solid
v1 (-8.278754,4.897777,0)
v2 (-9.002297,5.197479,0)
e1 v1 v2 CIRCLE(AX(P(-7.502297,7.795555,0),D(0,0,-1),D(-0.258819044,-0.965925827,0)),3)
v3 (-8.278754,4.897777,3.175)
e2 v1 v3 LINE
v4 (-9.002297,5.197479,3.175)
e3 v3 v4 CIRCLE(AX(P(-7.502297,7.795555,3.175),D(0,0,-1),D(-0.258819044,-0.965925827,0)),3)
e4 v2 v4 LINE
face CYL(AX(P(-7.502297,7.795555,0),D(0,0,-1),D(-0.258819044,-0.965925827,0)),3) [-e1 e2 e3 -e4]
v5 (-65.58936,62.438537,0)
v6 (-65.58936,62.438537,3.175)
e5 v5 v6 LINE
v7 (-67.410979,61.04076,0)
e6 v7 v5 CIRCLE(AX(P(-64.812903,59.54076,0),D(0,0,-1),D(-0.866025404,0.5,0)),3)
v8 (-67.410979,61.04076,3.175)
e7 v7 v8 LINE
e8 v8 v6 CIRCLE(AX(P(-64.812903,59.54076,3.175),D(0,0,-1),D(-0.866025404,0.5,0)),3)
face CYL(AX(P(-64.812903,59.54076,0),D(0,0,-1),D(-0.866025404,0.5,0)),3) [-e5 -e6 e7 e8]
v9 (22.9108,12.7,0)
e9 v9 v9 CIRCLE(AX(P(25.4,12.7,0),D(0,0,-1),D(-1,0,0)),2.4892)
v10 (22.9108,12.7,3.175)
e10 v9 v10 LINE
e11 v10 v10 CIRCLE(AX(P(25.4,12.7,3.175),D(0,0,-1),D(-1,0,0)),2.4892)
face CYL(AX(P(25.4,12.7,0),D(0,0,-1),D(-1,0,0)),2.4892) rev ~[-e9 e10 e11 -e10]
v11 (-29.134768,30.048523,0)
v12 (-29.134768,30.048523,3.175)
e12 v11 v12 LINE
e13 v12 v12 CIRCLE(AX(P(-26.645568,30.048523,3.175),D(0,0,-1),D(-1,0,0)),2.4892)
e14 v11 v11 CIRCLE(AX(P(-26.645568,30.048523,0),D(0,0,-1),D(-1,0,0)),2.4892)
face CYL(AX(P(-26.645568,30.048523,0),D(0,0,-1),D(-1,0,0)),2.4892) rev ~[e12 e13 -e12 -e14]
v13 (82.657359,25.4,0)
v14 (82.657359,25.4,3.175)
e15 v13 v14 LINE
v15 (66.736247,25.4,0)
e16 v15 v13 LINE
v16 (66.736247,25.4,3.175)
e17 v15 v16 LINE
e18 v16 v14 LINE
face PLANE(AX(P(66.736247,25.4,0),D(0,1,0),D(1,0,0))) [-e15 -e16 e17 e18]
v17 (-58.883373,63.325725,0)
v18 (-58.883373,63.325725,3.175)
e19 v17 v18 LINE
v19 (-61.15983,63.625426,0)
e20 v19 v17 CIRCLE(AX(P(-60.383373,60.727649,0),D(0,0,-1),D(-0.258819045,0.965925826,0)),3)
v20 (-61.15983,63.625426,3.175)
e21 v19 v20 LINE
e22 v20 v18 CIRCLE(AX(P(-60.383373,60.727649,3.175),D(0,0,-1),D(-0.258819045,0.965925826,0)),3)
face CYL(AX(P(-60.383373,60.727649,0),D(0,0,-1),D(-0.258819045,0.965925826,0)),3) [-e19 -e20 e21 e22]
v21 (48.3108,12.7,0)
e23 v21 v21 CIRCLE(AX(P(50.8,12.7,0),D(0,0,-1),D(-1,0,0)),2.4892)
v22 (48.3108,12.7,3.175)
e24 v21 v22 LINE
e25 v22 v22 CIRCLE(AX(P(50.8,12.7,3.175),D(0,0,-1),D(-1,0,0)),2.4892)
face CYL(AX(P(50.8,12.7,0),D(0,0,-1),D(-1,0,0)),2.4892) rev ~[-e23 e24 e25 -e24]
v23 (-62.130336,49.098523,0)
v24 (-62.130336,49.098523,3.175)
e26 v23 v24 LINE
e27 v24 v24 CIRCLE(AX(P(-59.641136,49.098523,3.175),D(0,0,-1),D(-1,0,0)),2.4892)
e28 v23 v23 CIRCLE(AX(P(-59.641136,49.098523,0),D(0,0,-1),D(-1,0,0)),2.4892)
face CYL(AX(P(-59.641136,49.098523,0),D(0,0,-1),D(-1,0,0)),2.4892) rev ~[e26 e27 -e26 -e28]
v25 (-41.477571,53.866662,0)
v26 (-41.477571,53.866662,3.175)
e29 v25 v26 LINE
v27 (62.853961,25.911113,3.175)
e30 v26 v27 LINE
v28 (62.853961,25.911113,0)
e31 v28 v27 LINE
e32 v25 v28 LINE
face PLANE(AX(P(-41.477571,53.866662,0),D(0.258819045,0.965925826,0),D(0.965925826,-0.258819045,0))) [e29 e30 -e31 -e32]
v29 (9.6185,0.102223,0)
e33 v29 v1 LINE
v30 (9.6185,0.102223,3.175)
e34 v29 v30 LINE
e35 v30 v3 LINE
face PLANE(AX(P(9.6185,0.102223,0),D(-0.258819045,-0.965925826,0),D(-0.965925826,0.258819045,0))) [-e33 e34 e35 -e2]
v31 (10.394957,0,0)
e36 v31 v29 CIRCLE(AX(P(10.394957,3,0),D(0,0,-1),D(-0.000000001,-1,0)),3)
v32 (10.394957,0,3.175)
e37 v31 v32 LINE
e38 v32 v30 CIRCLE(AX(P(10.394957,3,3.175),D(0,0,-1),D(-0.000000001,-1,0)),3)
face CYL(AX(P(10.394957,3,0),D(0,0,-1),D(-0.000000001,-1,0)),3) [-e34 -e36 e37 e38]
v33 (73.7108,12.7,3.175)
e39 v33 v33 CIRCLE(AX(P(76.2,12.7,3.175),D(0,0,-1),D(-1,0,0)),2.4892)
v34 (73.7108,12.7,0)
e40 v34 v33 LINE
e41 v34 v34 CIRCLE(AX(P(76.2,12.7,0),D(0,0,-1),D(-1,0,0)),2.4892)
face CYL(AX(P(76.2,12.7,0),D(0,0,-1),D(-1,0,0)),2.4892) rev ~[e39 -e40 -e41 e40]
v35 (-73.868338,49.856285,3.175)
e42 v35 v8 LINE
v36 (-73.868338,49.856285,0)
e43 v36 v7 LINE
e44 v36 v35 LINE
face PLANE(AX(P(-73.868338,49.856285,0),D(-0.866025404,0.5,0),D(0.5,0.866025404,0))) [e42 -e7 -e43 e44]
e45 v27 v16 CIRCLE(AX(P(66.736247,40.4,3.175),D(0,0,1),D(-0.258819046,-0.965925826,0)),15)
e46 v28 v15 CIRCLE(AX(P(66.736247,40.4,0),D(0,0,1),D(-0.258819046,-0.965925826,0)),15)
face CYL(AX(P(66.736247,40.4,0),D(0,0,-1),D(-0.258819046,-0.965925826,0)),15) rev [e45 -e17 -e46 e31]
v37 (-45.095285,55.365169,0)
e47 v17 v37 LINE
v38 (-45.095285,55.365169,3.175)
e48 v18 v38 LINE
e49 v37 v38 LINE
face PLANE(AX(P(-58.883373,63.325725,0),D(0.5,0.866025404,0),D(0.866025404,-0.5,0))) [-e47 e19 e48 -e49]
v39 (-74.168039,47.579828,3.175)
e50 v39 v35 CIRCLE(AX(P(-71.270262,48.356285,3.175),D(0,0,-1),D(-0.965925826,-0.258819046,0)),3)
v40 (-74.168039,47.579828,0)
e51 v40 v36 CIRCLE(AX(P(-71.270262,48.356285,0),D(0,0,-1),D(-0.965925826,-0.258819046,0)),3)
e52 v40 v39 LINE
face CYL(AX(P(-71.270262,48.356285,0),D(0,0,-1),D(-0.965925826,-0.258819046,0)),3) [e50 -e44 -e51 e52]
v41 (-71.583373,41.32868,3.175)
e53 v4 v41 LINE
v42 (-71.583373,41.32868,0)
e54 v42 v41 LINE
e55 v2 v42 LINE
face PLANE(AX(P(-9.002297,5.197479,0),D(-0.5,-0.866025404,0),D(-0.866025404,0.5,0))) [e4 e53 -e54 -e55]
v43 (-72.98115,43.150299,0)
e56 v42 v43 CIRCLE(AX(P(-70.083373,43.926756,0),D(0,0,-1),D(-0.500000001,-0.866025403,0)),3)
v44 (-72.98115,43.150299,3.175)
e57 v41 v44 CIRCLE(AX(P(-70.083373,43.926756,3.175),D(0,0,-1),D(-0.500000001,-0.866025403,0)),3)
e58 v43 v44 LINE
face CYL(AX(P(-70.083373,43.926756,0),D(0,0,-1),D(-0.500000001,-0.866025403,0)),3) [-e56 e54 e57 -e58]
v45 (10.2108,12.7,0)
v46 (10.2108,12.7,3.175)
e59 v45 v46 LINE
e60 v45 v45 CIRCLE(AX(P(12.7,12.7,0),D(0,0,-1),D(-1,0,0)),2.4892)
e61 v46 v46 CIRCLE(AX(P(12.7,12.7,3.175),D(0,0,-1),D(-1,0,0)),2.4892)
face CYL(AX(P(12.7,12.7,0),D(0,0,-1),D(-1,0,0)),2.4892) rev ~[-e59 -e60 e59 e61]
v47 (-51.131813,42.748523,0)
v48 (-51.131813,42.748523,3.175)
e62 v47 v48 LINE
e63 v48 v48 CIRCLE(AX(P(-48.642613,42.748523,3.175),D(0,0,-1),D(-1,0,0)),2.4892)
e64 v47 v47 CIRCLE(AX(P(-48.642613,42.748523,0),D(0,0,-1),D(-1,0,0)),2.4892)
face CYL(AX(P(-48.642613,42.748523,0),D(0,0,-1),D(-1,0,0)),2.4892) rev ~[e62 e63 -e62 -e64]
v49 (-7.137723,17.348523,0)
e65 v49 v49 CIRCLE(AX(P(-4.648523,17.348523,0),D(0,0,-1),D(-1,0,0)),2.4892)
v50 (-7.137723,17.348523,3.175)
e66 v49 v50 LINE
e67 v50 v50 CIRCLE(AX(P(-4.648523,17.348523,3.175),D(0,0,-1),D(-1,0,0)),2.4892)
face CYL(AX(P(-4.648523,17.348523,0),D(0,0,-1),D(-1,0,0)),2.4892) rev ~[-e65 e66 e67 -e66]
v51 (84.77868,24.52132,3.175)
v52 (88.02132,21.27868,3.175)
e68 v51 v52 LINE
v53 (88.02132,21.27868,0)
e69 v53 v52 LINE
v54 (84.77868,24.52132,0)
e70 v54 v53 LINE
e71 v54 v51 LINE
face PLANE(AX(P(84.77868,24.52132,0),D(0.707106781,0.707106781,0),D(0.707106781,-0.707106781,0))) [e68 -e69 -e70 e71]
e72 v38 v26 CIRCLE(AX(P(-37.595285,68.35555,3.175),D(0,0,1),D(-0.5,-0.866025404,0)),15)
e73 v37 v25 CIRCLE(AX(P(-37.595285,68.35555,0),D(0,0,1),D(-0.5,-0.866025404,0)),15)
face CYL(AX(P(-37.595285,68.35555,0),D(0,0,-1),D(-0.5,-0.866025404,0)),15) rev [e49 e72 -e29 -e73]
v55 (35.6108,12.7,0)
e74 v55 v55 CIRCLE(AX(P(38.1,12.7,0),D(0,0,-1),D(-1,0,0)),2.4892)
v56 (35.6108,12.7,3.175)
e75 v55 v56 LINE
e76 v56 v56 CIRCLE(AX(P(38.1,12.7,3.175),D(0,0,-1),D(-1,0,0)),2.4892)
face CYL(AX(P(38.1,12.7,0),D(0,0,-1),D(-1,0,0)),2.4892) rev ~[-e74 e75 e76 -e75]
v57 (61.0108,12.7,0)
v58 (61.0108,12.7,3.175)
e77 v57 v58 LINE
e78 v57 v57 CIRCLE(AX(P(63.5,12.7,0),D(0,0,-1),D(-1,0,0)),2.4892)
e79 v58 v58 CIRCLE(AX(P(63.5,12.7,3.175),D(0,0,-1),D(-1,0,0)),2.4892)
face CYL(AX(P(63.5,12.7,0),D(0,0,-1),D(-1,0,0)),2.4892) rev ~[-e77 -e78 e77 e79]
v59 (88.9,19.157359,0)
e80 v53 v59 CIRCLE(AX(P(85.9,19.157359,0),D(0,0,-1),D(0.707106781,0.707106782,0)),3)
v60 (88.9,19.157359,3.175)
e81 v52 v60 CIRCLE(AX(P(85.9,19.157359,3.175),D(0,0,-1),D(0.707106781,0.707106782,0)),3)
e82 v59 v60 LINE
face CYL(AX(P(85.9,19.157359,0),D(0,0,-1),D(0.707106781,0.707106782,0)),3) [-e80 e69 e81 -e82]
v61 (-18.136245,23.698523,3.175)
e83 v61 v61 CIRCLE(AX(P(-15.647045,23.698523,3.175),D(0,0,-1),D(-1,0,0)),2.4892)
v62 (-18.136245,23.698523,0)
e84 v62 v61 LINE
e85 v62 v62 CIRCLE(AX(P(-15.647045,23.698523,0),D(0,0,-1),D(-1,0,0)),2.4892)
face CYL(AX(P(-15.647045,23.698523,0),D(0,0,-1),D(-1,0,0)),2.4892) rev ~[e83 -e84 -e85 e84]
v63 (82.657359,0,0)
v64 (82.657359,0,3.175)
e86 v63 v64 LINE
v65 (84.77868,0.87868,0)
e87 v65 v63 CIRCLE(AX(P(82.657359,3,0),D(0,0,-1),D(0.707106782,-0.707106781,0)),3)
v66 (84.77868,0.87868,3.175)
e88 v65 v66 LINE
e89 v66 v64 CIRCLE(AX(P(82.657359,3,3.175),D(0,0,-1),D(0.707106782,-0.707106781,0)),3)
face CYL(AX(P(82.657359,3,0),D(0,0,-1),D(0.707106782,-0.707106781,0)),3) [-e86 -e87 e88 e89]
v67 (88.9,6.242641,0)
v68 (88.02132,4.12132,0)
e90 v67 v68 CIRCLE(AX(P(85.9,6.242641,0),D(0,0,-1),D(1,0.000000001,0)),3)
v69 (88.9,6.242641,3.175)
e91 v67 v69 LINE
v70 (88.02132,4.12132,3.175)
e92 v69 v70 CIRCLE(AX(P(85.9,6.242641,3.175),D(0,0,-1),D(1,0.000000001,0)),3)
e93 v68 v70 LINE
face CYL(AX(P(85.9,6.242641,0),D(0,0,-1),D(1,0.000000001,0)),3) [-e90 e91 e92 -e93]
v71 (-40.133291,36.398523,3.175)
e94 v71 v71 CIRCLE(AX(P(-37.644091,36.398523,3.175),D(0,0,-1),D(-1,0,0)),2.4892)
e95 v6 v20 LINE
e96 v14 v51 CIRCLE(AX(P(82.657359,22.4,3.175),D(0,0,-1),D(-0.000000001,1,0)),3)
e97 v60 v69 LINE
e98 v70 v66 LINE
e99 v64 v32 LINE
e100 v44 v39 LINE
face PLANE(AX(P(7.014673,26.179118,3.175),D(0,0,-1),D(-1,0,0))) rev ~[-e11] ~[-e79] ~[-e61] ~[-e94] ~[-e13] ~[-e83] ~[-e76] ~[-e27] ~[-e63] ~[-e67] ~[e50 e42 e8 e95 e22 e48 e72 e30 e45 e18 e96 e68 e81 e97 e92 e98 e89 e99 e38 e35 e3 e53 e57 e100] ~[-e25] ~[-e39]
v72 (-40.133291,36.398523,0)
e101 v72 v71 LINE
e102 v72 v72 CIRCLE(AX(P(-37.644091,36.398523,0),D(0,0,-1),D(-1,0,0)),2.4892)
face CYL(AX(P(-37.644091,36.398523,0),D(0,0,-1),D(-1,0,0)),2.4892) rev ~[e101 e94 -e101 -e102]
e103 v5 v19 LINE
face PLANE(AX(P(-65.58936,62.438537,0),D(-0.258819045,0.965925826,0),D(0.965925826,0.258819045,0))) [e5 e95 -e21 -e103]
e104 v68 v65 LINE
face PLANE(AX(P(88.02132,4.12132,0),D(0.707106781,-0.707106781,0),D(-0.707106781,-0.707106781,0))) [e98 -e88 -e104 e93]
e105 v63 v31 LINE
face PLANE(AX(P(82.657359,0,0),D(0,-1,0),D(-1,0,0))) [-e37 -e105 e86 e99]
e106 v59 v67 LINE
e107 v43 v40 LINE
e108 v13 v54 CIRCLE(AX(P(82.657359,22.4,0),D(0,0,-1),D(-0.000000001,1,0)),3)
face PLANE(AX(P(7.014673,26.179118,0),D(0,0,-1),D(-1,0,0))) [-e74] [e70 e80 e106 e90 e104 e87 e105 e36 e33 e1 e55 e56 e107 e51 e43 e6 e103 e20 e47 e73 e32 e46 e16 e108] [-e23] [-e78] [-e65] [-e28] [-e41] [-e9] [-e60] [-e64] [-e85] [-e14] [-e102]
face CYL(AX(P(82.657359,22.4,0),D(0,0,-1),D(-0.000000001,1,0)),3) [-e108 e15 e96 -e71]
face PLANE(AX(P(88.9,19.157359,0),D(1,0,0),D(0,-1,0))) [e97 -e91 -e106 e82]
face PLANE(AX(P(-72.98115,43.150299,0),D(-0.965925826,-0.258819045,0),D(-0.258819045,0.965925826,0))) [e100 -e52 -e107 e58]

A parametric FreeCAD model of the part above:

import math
import FreeCAD as App
import Part
import Sketcher
from FreeCAD import Vector
Q = App.Units.Quantity

doc = App.newDocument("Part")
body = doc.addObject("PartDesign::Body", "Body")

# Sketch on XY plane
sketch1 = body.newObject("Sketcher::SketchObject", "Sketch")
sketch1.AttachmentSupport = (doc.getObject("XY_Plane"), [""])
sketch1.MapMode = "FlatFace"
sketch1.addGeometry([
    Part.LineSegment(Vector(82.657359, 0, 0), Vector(10.394957, 0, 0)),  # 0
    Part.ArcOfCircle(Part.Circle(Vector(10.394957, 3, 0), Vector(0, 0, 1), 3), math.radians(-105), math.radians(-90)),  # 1
    Part.LineSegment(Vector(9.6185, 0.102223, 0), Vector(-8.278754, 4.897777, 0)),  # 2
    Part.ArcOfCircle(Part.Circle(Vector(-7.502297, 7.795555, 0), Vector(0, 0, 1), 3), math.radians(-120), math.radians(-105)),  # 3
    Part.LineSegment(Vector(-9.002297, 5.197479, 0), Vector(-71.583373, 41.32868, 0)),  # 4
    Part.ArcOfCircle(Part.Circle(Vector(-70.083373, 43.926756, 0), Vector(0, 0, 1), 3), math.radians(-165), math.radians(-120)),  # 5
    Part.LineSegment(Vector(-72.98115, 43.150299, 0), Vector(-74.168039, 47.579828, 0)),  # 6
    Part.ArcOfCircle(Part.Circle(Vector(-71.270262, 48.356285, 0), Vector(0, 0, 1), 3), math.radians(150), math.radians(195)),  # 7
    Part.LineSegment(Vector(-73.868338, 49.856285, 0), Vector(-67.410979, 61.04076, 0)),  # 8
    Part.ArcOfCircle(Part.Circle(Vector(-64.812903, 59.54076, 0), Vector(0, 0, 1), 3), math.radians(105), math.radians(150)),  # 9
    Part.LineSegment(Vector(-65.58936, 62.438537, 0), Vector(-61.15983, 63.625426, 0)),  # 10
    Part.ArcOfCircle(Part.Circle(Vector(-60.383373, 60.727649, 0), Vector(0, 0, 1), 3), math.radians(60), math.radians(105)),  # 11
    Part.LineSegment(Vector(-58.883373, 63.325725, 0), Vector(-45.095285, 55.365169, 0)),  # 12
    Part.ArcOfCircle(Part.Circle(Vector(-37.595285, 68.35555, 0), Vector(0, 0, 1), 15), math.radians(-120), math.radians(-105)),  # 13
    Part.LineSegment(Vector(-41.477571, 53.866662, 0), Vector(62.853961, 25.911113, 0)),  # 14
    Part.ArcOfCircle(Part.Circle(Vector(66.736247, 40.4, 0), Vector(0, 0, 1), 15), math.radians(-105), math.radians(-90)),  # 15
    Part.LineSegment(Vector(66.736247, 25.4, 0), Vector(82.657359, 25.4, 0)),  # 16
    Part.ArcOfCircle(Part.Circle(Vector(82.657359, 22.4, 0), Vector(0, 0, 1), 3), math.radians(45), math.radians(90)),  # 17
    Part.LineSegment(Vector(84.77868, 24.52132, 0), Vector(88.02132, 21.27868, 0)),  # 18
    Part.ArcOfCircle(Part.Circle(Vector(85.9, 19.157359, 0), Vector(0, 0, 1), 3), math.radians(0), math.radians(45)),  # 19
    Part.LineSegment(Vector(88.9, 19.157359, 0), Vector(88.9, 6.242641, 0)),  # 20
    Part.ArcOfCircle(Part.Circle(Vector(85.9, 6.242641, 0), Vector(0, 0, 1), 3), math.radians(-45), math.radians(0)),  # 21
    Part.LineSegment(Vector(88.02132, 4.12132, 0), Vector(84.77868, 0.87868, 0)),  # 22
    Part.ArcOfCircle(Part.Circle(Vector(82.657359, 3, 0), Vector(0, 0, 1), 3), math.radians(-90), math.radians(-45)),  # 23
    Part.Circle(Vector(76.2, 12.7, 0), Vector(0, 0, 1), 2.4892),  # 24
    Part.Circle(Vector(63.5, 12.7, 0), Vector(0, 0, 1), 2.4892),  # 25
    Part.Circle(Vector(50.8, 12.7, 0), Vector(0, 0, 1), 2.4892),  # 26
    Part.Circle(Vector(38.1, 12.7, 0), Vector(0, 0, 1), 2.4892),  # 27
    Part.Circle(Vector(25.4, 12.7, 0), Vector(0, 0, 1), 2.4892),  # 28
    Part.Circle(Vector(12.7, 12.7, 0), Vector(0, 0, 1), 2.4892),  # 29
    Part.Circle(Vector(-4.648523, 17.348523, 0), Vector(0, 0, 1), 2.4892),  # 30
    Part.Circle(Vector(-15.647045, 23.698523, 0), Vector(0, 0, 1), 2.4892),  # 31
    Part.Circle(Vector(-26.645568, 30.048523, 0), Vector(0, 0, 1), 2.4892),  # 32
    Part.Circle(Vector(-37.644091, 36.398523, 0), Vector(0, 0, 1), 2.4892),  # 33
    Part.Circle(Vector(-48.642613, 42.748523, 0), Vector(0, 0, 1), 2.4892),  # 34
    Part.Circle(Vector(-59.641136, 49.098523, 0), Vector(0, 0, 1), 2.4892),  # 35
], False)
sketch1.addConstraint([
    Sketcher.Constraint("Tangent", 0, 2, 1, 2),
    Sketcher.Constraint("Tangent", 1, 1, 2, 1),
    Sketcher.Constraint("Tangent", 2, 2, 3, 2),
    Sketcher.Constraint("Tangent", 3, 1, 4, 1),
    Sketcher.Constraint("Tangent", 4, 2, 5, 2),
    Sketcher.Constraint("Tangent", 5, 1, 6, 1),
    Sketcher.Constraint("Tangent", 6, 2, 7, 2),
    Sketcher.Constraint("Tangent", 7, 1, 8, 1),
    Sketcher.Constraint("Tangent", 8, 2, 9, 2),
    Sketcher.Constraint("Tangent", 9, 1, 10, 1),
    Sketcher.Constraint("Tangent", 10, 2, 11, 2),
    Sketcher.Constraint("Tangent", 11, 1, 12, 1),
    Sketcher.Constraint("Tangent", 12, 2, 13, 1),
    Sketcher.Constraint("Tangent", 13, 2, 14, 1),
    Sketcher.Constraint("Tangent", 14, 2, 15, 1),
    Sketcher.Constraint("Tangent", 15, 2, 16, 1),
    Sketcher.Constraint("Tangent", 16, 2, 17, 2),
    Sketcher.Constraint("Tangent", 17, 1, 18, 1),
    Sketcher.Constraint("Tangent", 18, 2, 19, 2),
    Sketcher.Constraint("Tangent", 19, 1, 20, 1),
    Sketcher.Constraint("Tangent", 20, 2, 21, 2),
    Sketcher.Constraint("Tangent", 21, 1, 22, 1),
    Sketcher.Constraint("Tangent", 22, 2, 23, 2),
    Sketcher.Constraint("Tangent", 23, 1, 0, 1),
    Sketcher.Constraint("Horizontal", 0),
    Sketcher.Constraint("Horizontal", 16),
    Sketcher.Constraint("Vertical", 20),
    Sketcher.Constraint("Equal", 1, 3),
    Sketcher.Constraint("Equal", 3, 5),
    Sketcher.Constraint("Equal", 5, 7),
    Sketcher.Constraint("Equal", 7, 9),
    Sketcher.Constraint("Equal", 9, 11),
    Sketcher.Constraint("Equal", 13, 15),
    Sketcher.Constraint("Equal", 11, 17),
    Sketcher.Constraint("Equal", 17, 19),
    Sketcher.Constraint("Equal", 19, 21),
    Sketcher.Constraint("Equal", 21, 23),
    Sketcher.Constraint("Equal", 24, 25),
    Sketcher.Constraint("Equal", 25, 26),
    Sketcher.Constraint("Equal", 26, 27),
    Sketcher.Constraint("Equal", 27, 28),
    Sketcher.Constraint("Equal", 28, 29),
    Sketcher.Constraint("Equal", 29, 30),
    Sketcher.Constraint("Equal", 30, 31),
    Sketcher.Constraint("Equal", 31, 32),
    Sketcher.Constraint("Equal", 32, 33),
    Sketcher.Constraint("Equal", 33, 34),
    Sketcher.Constraint("Equal", 34, 35),
    Sketcher.Constraint("PointOnObject", 0, 2, -1),
    Sketcher.Constraint("Perpendicular", 4, 8),
    Sketcher.Constraint("Perpendicular", 6, 10),
    Sketcher.Constraint("Perpendicular", 8, 12),
    Sketcher.Constraint("Parallel", 2, 14),
    Sketcher.Constraint("Perpendicular", 18, 22),
    Sketcher.Constraint("Horizontal", 24, 3, 25, 3),
    Sketcher.Constraint("Horizontal", 25, 3, 26, 3),
    Sketcher.Constraint("Horizontal", 26, 3, 27, 3),
    Sketcher.Constraint("Horizontal", 27, 3, 28, 3),
    Sketcher.Constraint("Horizontal", 28, 3, 29, 3),
    Sketcher.Constraint("Vertical", 17, 3, 23, 3),
    Sketcher.Constraint("Vertical", 18, 2, 21, 1),
    Sketcher.Constraint("Equal", 6, 10),
    Sketcher.Constraint("Equal", 10, 18),
    Sketcher.Constraint("Radius", 1, 3.0),
    Sketcher.Constraint("Radius", 13, 15.0),
    Sketcher.Constraint("Angle", 2, Q("165 deg")),
    Sketcher.Constraint("Angle", 4, Q("150 deg")),
    Sketcher.Constraint("Angle", 6, Q("105 deg")),
    Sketcher.Constraint("Diameter", 24, 4.9784),
    Sketcher.Constraint("DistanceY", -1, 1, 15, 3, 40.4),
    Sketcher.Constraint("DistanceX", -1, 1, 19, 3, 85.9),
    Sketcher.Constraint("DistanceX", -1, 1, 24, 3, 76.2),
    Sketcher.Constraint("DistanceY", -1, 1, 24, 3, 12.7),
    Sketcher.Constraint("DistanceX", -1, 1, 25, 3, 63.5),
    Sketcher.Constraint("DistanceX", -1, 1, 26, 3, 50.8),
    Sketcher.Constraint("DistanceX", -1, 1, 27, 3, 38.1),
    Sketcher.Constraint("DistanceX", -1, 1, 28, 3, 25.4),
    Sketcher.Constraint("DistanceX", -1, 1, 29, 3, 12.7),
    Sketcher.Constraint("DistanceX", 5, 3, 11, 3, 9.7),
    Sketcher.Constraint("DistanceY", 30, 3, 32, 3, 12.7),
    Sketcher.Constraint("DistanceY", 31, 3, 33, 3, 12.7),
    Sketcher.Constraint("DistanceY", 30, 3, 31, 3, 6.35),
    Sketcher.Constraint("DistanceY", 33, 3, 34, 3, 6.35),
    Sketcher.Constraint("DistanceY", 34, 3, 35, 3, 6.35),
    Sketcher.Constraint("DistanceX", 0, 2, 0, 1, 72.262402),
    Sketcher.Constraint("Distance", 2, 18.528602),
    Sketcher.Constraint("Distance", 4, 72.262402),
    Sketcher.Constraint("DistanceY", 20, 2, 20, 1, 12.914719),
    Sketcher.Constraint("DistanceY", 11, 3, 13, 3, 7.627901),
    Sketcher.Constraint("DistanceX", 33, 3, -1, 1, 37.644091),
    Sketcher.Constraint("DistanceX", 30, 3, 1, 3, 15.04348),
    Sketcher.Constraint("DistanceX", 32, 3, 3, 3, 19.143271),
    Sketcher.Constraint("DistanceX", 11, 3, 34, 3, 11.74076),
    Sketcher.Constraint("DistanceX", 35, 3, 12, 2, 14.545851),
    Sketcher.Constraint("DistanceY", 34, 3, 13, 2, 11.11814),
    Sketcher.Constraint("DistanceX", 31, 3, -1, 1, 15.647045),
])
pad1 = body.newObject("PartDesign::Pad", "Pad")
pad1.Profile = sketch1
pad1.Length = 3.175

doc.recompute()
